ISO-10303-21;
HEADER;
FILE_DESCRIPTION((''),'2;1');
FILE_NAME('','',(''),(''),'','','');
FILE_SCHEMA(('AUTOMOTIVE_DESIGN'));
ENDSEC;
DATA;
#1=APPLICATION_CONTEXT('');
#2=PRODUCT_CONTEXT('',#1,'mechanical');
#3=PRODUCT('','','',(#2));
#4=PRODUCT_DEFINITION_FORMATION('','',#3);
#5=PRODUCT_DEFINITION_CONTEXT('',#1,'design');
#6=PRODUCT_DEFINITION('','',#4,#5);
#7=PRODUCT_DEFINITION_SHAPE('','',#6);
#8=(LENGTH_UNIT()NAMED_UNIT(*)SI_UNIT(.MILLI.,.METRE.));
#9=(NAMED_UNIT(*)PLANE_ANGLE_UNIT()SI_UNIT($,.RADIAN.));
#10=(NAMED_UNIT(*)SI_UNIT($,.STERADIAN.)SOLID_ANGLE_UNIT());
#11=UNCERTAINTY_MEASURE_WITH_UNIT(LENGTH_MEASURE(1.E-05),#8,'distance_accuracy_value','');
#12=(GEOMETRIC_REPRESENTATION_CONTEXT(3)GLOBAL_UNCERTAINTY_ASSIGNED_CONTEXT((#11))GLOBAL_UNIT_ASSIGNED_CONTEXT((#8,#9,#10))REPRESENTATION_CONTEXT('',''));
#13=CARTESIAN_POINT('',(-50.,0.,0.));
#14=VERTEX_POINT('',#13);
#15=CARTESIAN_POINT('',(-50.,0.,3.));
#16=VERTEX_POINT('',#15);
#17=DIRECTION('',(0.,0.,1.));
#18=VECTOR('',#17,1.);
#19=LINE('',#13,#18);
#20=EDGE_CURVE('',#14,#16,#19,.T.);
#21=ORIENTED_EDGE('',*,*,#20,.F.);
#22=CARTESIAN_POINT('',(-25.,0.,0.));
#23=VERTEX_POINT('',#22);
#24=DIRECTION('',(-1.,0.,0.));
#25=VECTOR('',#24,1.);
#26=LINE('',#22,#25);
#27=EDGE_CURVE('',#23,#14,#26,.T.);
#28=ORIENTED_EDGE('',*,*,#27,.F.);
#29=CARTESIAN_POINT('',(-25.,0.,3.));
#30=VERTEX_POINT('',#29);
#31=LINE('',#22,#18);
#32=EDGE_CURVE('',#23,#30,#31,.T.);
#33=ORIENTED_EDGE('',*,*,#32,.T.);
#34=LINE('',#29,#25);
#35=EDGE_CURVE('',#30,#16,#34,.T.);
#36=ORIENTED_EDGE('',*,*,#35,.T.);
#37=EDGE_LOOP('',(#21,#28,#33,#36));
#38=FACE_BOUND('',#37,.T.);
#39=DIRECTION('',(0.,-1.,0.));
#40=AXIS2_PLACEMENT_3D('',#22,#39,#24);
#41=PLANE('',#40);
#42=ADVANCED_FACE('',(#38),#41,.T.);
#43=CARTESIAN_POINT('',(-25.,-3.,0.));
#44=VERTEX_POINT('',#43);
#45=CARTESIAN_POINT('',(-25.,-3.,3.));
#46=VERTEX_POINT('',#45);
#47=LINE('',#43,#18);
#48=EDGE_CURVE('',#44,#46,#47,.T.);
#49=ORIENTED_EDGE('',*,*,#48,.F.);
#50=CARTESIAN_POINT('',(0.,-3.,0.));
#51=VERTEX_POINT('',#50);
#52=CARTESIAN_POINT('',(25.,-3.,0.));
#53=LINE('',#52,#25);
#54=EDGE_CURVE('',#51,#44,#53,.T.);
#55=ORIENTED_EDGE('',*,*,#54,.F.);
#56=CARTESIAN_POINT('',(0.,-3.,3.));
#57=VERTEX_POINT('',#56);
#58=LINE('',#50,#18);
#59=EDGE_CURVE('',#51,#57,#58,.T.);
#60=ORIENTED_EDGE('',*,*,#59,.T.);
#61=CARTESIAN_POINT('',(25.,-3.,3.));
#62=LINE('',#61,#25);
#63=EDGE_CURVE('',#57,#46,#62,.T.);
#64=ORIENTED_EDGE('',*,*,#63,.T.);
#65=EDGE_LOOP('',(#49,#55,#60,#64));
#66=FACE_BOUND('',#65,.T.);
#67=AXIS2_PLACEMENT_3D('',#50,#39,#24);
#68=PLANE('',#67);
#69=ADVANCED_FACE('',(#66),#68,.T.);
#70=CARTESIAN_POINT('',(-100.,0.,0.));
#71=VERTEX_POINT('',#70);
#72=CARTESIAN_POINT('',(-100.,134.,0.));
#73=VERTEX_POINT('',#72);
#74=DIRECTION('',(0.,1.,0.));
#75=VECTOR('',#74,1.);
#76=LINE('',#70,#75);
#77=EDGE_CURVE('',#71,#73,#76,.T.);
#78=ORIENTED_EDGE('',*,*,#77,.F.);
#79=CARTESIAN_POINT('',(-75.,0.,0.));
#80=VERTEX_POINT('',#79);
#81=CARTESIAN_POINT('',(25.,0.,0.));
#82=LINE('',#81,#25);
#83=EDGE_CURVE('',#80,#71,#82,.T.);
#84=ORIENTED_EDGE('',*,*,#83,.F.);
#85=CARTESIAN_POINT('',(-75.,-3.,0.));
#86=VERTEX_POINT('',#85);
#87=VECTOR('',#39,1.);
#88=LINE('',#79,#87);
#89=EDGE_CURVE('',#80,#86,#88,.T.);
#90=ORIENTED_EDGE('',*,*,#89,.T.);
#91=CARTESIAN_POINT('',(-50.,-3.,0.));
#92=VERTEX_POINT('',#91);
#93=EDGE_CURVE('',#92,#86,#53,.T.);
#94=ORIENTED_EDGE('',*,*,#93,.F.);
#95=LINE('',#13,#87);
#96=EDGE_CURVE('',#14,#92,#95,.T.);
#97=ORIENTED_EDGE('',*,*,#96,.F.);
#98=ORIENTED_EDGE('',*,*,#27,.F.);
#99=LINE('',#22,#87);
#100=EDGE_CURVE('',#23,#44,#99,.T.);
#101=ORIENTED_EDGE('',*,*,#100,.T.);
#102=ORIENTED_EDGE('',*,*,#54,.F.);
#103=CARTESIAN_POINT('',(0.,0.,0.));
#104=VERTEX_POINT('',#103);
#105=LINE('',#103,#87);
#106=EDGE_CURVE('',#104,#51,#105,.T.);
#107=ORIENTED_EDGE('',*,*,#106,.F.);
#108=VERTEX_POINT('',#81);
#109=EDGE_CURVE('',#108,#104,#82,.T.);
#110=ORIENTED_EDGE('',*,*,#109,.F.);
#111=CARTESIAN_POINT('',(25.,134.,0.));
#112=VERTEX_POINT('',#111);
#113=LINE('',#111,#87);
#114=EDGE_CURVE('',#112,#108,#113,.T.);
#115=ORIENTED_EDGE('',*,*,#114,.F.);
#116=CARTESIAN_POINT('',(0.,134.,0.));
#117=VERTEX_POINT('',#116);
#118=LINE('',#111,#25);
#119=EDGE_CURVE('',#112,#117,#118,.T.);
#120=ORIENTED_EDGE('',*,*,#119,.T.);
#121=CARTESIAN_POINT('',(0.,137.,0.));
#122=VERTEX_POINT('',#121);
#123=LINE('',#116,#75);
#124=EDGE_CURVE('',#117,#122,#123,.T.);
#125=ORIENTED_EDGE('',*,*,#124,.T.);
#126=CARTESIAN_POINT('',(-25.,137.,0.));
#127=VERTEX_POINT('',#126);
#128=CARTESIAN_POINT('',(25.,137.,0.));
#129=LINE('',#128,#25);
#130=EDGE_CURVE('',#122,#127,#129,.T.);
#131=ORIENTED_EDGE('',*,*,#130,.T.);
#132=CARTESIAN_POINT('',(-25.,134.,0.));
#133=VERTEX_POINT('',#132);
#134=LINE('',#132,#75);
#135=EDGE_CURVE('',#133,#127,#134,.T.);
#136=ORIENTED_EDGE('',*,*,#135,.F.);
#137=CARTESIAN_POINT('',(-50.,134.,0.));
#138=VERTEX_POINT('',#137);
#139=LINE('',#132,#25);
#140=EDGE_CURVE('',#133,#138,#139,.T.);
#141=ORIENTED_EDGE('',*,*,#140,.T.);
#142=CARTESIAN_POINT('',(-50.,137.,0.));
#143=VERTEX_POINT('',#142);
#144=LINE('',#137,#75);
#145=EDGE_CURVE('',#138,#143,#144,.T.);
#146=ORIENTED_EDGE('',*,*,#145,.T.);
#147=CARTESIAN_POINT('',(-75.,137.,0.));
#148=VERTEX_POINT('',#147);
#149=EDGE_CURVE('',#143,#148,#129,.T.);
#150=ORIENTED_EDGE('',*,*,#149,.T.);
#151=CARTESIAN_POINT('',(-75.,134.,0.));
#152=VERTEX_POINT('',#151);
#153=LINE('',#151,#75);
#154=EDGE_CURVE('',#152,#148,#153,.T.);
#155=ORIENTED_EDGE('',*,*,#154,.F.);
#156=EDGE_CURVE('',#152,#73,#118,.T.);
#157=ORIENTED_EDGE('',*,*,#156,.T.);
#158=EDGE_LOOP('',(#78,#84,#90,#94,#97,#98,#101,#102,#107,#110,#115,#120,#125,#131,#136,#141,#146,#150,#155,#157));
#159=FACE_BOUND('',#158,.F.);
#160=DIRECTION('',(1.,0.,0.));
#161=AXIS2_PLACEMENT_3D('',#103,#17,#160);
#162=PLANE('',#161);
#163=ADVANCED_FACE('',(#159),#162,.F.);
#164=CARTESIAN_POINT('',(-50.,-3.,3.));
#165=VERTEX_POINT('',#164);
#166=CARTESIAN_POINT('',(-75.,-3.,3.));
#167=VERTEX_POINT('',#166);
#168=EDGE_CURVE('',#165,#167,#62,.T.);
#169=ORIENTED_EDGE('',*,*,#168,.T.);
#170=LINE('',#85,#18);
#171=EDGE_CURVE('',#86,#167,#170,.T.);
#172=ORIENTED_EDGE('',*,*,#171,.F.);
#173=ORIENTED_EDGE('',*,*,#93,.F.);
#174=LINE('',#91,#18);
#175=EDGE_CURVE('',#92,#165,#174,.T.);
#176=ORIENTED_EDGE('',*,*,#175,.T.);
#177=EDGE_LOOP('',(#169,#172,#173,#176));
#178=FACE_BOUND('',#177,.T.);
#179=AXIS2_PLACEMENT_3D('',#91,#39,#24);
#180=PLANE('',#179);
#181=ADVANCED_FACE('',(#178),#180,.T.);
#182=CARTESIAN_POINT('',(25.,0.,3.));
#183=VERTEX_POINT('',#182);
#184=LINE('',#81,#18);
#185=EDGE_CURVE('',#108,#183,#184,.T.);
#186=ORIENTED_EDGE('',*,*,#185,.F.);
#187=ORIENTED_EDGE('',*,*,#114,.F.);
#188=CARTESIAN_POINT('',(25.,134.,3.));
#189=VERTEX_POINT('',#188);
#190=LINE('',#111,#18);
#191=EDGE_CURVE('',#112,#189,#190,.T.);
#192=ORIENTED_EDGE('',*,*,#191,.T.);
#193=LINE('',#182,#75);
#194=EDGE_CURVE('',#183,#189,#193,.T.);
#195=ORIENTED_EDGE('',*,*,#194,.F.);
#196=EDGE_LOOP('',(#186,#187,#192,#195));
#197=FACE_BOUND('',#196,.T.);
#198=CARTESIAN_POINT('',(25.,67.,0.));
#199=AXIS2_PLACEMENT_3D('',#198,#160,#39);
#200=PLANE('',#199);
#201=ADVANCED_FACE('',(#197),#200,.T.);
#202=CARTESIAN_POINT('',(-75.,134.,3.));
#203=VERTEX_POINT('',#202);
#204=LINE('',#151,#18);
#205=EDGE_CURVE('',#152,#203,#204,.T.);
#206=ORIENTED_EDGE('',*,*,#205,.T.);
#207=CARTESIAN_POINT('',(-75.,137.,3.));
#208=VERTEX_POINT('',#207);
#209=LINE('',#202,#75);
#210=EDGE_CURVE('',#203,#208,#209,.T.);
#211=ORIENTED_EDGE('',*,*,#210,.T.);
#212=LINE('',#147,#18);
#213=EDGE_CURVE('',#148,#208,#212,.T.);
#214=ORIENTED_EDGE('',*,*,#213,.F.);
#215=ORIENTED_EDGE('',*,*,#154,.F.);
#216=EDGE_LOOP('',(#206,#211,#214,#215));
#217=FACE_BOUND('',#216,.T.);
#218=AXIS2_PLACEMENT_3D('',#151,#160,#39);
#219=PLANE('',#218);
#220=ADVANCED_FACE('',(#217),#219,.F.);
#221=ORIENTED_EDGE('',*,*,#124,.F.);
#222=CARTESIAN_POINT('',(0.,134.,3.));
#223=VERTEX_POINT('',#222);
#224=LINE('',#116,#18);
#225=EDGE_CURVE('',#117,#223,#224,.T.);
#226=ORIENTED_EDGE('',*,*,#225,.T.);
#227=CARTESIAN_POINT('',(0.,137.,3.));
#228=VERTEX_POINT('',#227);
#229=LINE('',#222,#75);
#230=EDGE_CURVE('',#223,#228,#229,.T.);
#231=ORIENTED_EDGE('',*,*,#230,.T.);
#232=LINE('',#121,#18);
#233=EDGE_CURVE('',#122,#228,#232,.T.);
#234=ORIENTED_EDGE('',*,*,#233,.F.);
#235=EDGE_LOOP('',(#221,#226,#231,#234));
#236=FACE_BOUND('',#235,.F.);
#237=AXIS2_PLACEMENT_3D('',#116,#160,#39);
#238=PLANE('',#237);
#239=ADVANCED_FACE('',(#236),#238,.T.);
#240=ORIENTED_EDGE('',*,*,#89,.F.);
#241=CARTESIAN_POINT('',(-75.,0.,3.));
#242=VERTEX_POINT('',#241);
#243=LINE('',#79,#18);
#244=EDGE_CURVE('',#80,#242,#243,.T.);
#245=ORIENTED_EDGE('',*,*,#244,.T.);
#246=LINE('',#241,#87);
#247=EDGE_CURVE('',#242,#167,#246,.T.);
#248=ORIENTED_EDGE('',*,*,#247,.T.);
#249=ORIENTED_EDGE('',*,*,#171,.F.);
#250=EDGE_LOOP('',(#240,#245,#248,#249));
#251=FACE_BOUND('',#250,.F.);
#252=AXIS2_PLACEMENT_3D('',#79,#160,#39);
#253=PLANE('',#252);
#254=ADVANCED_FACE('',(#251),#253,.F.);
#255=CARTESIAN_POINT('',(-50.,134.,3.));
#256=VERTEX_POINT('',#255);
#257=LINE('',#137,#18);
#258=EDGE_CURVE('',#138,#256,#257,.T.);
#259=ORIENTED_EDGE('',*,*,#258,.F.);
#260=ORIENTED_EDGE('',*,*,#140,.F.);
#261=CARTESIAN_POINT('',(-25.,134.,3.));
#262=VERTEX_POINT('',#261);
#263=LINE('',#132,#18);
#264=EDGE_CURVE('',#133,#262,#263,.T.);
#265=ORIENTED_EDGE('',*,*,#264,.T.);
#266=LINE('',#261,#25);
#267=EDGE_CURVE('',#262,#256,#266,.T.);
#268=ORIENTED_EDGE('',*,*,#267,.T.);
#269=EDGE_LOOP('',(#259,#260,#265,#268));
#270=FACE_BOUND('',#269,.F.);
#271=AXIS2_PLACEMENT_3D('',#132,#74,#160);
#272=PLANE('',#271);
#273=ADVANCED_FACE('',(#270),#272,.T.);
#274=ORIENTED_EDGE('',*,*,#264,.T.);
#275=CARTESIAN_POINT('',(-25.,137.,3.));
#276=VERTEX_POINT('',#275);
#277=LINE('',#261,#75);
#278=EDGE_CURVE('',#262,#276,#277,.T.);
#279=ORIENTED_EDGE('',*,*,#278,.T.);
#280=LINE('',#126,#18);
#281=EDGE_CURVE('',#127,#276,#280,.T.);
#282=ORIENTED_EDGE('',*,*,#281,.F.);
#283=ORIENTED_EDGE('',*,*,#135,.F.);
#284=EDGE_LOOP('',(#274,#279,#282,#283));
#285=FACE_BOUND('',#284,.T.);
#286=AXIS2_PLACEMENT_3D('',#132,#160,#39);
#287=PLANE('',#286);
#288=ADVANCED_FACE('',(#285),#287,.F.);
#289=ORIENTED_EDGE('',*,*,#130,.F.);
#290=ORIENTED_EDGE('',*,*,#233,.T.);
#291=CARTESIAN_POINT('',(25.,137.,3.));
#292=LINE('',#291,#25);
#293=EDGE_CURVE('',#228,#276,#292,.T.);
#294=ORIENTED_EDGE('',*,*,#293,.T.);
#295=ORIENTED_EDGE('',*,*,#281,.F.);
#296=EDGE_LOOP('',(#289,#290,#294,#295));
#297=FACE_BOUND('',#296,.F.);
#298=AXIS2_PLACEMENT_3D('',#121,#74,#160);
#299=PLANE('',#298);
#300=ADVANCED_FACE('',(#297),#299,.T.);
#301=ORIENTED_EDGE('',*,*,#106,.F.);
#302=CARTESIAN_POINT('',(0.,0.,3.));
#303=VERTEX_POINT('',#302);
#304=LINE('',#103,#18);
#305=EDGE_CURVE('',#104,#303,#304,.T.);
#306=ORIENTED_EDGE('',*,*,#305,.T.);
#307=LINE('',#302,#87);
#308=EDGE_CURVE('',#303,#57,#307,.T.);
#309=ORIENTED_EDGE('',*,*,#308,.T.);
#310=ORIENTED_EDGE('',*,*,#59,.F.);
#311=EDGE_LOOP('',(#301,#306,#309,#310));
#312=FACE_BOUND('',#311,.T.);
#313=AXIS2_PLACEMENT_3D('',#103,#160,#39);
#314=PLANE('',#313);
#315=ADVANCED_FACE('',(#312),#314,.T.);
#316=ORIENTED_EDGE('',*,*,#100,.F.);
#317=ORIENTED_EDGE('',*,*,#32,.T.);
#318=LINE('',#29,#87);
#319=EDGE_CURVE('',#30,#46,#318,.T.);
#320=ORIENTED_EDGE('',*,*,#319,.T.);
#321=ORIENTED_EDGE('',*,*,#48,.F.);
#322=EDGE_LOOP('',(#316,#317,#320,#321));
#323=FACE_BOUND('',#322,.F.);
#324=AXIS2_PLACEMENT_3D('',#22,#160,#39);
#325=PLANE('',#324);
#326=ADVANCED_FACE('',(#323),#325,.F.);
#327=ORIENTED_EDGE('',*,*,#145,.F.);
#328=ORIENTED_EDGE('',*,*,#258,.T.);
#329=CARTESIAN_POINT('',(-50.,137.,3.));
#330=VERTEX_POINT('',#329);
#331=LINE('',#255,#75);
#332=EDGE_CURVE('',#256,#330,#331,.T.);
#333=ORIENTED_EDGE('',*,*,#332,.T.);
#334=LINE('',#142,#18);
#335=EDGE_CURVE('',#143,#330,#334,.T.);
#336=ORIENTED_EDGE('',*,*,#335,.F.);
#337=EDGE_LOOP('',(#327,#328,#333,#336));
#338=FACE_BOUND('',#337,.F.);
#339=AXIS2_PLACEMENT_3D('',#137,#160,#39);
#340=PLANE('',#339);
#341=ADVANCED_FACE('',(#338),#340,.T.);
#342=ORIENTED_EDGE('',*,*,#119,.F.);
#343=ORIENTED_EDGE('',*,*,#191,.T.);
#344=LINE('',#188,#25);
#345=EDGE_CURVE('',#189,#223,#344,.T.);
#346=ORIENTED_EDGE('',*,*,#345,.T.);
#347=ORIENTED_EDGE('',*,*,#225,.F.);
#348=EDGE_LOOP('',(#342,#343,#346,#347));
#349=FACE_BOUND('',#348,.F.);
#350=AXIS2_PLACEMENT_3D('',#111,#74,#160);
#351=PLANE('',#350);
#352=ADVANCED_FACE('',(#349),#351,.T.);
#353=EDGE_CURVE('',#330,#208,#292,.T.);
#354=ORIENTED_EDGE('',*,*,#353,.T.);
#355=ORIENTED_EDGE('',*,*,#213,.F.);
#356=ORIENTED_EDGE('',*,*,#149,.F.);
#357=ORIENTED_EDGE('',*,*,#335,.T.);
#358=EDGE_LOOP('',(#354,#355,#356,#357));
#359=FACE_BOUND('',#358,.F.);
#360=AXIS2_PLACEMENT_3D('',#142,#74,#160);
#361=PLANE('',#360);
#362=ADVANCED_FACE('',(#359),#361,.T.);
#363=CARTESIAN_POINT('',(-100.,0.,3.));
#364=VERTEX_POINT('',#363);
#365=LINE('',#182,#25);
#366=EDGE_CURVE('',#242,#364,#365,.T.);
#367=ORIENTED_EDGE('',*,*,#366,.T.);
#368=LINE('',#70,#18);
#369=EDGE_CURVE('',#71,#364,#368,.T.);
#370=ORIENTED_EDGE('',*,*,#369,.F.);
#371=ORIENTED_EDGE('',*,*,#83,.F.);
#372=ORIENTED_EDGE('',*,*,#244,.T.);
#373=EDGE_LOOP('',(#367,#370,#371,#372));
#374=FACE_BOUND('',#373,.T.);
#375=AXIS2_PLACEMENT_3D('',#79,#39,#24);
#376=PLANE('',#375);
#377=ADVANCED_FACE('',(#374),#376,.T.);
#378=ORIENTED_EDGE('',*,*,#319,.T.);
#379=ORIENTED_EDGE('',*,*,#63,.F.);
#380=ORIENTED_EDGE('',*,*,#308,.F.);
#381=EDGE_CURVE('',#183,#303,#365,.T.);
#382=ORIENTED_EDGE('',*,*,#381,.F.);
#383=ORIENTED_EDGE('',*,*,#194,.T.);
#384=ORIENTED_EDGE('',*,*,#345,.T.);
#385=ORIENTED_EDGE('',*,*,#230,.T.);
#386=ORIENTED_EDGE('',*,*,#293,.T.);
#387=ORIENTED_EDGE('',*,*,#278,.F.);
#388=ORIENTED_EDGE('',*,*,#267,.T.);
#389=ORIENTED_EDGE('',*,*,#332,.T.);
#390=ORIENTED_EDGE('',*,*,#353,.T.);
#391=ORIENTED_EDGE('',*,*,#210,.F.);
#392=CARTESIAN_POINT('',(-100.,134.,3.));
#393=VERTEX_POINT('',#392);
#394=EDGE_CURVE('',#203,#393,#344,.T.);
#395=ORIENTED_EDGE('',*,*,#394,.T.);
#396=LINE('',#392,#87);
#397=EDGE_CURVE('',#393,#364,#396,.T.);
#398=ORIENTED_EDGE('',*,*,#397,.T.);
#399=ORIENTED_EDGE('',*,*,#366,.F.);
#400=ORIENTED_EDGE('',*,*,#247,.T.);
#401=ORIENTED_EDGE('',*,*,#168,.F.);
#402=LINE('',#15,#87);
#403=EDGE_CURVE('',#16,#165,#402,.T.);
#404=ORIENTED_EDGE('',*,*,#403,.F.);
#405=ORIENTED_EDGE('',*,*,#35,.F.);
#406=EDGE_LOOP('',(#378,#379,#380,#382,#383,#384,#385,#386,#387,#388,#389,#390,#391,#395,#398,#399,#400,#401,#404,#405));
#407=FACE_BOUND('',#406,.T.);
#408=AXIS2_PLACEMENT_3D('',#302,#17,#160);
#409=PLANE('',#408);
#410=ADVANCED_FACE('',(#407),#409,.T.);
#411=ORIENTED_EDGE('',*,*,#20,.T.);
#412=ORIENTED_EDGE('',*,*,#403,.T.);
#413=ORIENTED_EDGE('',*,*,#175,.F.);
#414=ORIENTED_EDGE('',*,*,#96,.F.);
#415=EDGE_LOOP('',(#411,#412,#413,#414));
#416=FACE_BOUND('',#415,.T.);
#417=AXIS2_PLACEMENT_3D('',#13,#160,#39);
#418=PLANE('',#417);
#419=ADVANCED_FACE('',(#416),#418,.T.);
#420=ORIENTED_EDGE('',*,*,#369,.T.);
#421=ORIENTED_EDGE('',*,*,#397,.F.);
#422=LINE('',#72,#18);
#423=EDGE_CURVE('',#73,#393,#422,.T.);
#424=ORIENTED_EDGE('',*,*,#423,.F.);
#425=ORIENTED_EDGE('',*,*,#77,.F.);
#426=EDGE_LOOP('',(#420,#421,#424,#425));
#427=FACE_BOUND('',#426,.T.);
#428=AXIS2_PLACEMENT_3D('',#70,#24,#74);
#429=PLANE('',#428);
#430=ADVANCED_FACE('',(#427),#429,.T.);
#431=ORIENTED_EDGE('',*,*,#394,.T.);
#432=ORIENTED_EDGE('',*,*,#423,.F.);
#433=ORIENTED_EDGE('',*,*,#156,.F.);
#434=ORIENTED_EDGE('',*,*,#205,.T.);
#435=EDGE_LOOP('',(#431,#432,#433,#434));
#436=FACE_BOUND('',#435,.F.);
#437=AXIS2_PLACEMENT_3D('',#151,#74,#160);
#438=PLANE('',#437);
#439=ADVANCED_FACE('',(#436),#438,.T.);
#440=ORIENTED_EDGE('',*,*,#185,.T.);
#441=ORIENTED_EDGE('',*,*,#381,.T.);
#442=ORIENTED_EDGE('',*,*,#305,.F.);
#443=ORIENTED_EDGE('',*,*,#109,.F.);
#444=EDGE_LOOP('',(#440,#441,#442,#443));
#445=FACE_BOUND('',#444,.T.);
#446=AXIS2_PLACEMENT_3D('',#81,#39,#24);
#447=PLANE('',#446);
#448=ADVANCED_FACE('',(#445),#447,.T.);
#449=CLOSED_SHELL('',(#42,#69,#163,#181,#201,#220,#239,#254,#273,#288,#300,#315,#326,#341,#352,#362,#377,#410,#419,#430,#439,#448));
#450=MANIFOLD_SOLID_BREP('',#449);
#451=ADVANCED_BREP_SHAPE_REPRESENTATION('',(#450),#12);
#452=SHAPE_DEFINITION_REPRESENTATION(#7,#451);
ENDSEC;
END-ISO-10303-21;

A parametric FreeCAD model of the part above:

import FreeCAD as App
import Part
import Sketcher
from FreeCAD import Vector


def add_polygon(sketch, points):
    """Adds a closed chain of lines whose ends are joined by coincident constraints."""
    first, n = sketch.GeometryCount, len(points)
    for a, b in zip(points, points[1:] + points[:1]):
        sketch.addGeometry(Part.LineSegment(App.Vector(*a, 0), App.Vector(*b, 0)), False)
    for i in range(n):
        sketch.addConstraint(Sketcher.Constraint("Coincident", first + i, 2, first + (i + 1) % n, 1))

doc = App.newDocument("Part")
params = doc.addObject("Spreadsheet::Sheet", "Params")
for row, (alias, value) in enumerate([
    ("sketch1_width", "25 mm"),
    ("sketch1_height", "3 mm"),
    ("pad1_length", "3 mm"),
], start=1):
    params.set(f"A{row}", alias)
    params.set(f"B{row}", "=" + value)
    params.setAlias(f"B{row}", alias)

body = doc.addObject("PartDesign::Body", "Body")

# Sketch on XY plane
sketch1 = body.newObject("Sketcher::SketchObject", "Sketch")
sketch1.AttachmentSupport = (doc.getObject("XY_Plane"), [""])
sketch1.MapMode = "FlatFace"
add_polygon(sketch1, [(0, -3), (0, 0), (25, 0), (25, 67), (-100, 67), (-100, 0), (-75, 0), (-75, -3), (-50, -3), (-50, 0), (-25, 0), (-25, -3)])  # lines 0-11
sketch1.addConstraint([
    Sketcher.Constraint("Vertical", 0),
    Sketcher.Constraint("Horizontal", 1),
    Sketcher.Constraint("Vertical", 2),
    Sketcher.Constraint("Horizontal", 3),
    Sketcher.Constraint("Vertical", 4),
    Sketcher.Constraint("Horizontal", 5),
    Sketcher.Constraint("Vertical", 6),
    Sketcher.Constraint("Horizontal", 7),
    Sketcher.Constraint("Vertical", 8),
    Sketcher.Constraint("Horizontal", 9),
    Sketcher.Constraint("Vertical", 10),
    Sketcher.Constraint("Horizontal", 11),
    Sketcher.Constraint("Coincident", 0, 2, -1, 1),
    Sketcher.Constraint("Symmetric", 1, 2, 9, 2, -1, 1),
    Sketcher.Constraint("PointOnObject", 4, 2, -1),
    Sketcher.Constraint("Horizontal", 7, 2, 10, 2),
    Sketcher.Constraint("Equal", 1, 5),
    Sketcher.Constraint("Equal", 5, 7),
    Sketcher.Constraint("Equal", 7, 9),
    Sketcher.Constraint("DistanceX", 1, 1, 1, 2, 25.0),
    Sketcher.Constraint("DistanceY", 0, 1, 0, 2, 3.0),
    Sketcher.Constraint("DistanceY", 6, 2, 3, 2, 70.0),
])
sketch1.setExpression("Constraints[31]", "Params.sketch1_width")
sketch1.setExpression("Constraints[32]", "Params.sketch1_height")
pad1 = body.newObject("PartDesign::Pad", "Pad")
pad1.Profile = sketch1
pad1.setExpression("Length", "Params.pad1_length")
doc.recompute()

datumplane = body.newObject("PartDesign::Plane", "DatumPlane")
datumplane.AttachmentSupport = (doc.getObject("XZ_Plane"), [""])
datumplane.MapMode = "FlatFace"
datumplane.AttachmentOffset = App.Placement(Vector(0, 0, -67), App.Rotation())
mirrored = body.newObject("PartDesign::Mirrored", "Mirrored")
mirrored.Originals = [pad1]
mirrored.MirrorPlane = (datumplane, [""])
body.Tip = mirrored

doc.recompute()
